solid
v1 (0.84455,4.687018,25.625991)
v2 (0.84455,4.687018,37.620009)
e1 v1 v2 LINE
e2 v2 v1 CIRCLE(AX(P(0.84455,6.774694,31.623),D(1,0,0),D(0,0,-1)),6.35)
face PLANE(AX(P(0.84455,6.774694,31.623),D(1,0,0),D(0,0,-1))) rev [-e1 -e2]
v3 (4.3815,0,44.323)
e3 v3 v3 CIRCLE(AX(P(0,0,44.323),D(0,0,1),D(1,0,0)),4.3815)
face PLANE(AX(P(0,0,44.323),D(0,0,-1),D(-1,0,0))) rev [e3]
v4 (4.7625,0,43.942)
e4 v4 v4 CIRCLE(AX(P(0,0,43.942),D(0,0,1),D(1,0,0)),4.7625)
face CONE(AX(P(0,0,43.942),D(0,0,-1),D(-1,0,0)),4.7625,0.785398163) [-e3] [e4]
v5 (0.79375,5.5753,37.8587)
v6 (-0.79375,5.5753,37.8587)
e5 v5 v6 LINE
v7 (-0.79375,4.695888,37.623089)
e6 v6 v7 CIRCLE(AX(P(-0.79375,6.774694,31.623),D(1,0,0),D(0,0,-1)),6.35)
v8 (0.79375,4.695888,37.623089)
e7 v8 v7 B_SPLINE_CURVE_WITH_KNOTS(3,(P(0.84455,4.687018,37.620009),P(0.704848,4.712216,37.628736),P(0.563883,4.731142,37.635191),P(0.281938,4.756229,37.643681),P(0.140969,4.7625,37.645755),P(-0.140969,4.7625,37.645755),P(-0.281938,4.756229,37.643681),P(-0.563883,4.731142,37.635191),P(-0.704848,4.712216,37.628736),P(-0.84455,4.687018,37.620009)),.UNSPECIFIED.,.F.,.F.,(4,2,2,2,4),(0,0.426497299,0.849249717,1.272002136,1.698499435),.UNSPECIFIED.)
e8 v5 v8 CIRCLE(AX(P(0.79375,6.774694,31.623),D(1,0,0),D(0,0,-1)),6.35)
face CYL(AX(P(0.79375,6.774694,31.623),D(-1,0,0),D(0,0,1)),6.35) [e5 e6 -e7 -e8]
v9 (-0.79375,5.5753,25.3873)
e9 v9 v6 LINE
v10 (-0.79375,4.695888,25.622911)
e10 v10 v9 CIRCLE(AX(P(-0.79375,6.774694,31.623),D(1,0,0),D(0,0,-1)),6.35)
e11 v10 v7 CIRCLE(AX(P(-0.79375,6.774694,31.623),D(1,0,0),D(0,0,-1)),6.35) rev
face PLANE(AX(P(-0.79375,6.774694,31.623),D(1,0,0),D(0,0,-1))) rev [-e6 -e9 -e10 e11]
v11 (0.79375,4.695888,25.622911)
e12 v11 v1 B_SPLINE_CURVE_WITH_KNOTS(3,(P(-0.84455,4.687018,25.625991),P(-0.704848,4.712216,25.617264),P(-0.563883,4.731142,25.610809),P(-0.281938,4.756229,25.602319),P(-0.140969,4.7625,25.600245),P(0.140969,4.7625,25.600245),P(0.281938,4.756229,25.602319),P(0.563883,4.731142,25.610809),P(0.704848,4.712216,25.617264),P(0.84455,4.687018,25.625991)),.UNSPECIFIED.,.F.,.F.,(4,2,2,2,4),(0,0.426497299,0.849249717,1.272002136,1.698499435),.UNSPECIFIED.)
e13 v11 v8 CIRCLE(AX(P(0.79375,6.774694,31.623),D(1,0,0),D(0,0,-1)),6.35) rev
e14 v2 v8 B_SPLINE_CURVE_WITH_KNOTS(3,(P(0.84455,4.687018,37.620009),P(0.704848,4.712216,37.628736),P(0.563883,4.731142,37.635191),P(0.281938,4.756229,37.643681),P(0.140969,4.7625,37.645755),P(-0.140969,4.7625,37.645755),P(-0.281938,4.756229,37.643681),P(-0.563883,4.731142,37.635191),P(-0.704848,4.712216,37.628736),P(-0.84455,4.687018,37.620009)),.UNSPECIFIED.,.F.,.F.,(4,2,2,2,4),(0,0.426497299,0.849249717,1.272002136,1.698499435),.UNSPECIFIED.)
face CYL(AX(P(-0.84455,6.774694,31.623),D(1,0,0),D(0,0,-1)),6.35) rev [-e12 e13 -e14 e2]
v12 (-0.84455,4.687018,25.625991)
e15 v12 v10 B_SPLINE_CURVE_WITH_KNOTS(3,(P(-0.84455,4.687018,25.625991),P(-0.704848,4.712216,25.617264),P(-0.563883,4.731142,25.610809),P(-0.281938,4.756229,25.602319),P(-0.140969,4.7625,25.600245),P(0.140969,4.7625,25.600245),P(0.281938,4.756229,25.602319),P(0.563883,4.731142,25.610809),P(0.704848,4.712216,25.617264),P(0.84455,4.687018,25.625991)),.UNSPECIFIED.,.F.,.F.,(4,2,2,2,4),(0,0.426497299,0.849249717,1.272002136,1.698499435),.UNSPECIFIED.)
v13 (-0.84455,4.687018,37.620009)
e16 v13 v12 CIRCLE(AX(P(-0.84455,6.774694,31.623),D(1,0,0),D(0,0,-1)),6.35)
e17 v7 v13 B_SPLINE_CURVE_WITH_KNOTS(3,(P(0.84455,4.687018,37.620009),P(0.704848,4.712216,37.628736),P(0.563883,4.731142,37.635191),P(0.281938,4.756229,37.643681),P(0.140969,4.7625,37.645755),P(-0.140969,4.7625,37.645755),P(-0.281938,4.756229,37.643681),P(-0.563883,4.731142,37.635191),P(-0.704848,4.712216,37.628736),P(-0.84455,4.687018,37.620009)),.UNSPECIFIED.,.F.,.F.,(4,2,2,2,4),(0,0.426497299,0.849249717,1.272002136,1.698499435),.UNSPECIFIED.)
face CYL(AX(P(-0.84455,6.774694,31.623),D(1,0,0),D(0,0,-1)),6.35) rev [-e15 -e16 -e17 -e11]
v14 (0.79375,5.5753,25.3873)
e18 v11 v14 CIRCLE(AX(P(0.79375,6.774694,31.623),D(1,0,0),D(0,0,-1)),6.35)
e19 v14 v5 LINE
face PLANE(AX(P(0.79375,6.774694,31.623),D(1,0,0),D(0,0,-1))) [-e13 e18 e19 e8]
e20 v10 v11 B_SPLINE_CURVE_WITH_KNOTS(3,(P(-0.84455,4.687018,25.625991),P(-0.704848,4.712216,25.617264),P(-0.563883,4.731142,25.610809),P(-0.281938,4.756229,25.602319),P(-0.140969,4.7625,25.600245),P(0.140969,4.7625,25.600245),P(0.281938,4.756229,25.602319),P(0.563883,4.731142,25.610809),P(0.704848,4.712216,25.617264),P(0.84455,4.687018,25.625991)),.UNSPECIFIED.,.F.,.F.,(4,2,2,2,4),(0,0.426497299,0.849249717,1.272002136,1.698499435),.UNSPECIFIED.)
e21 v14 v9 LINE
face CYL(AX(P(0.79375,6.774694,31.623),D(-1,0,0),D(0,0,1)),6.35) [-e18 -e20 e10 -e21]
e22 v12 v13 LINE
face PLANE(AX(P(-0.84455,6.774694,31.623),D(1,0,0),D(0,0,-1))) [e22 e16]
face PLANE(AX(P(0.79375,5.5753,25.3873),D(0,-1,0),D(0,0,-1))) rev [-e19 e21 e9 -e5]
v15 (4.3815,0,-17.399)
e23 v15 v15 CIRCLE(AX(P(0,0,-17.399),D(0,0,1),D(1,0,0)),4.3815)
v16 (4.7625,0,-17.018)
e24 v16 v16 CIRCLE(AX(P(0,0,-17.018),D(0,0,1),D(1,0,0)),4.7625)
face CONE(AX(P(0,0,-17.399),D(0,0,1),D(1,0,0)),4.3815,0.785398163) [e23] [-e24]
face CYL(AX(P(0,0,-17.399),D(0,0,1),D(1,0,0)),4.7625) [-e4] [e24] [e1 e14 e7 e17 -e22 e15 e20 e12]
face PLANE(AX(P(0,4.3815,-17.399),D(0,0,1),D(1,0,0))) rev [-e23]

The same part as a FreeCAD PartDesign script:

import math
import FreeCAD as App
import Part
import Sketcher
from FreeCAD import Vector
Q = App.Units.Quantity


def add_polygon(sketch, points):
    """Adds a closed chain of lines whose ends are joined by coincident constraints."""
    first, n = sketch.GeometryCount, len(points)
    for a, b in zip(points, points[1:] + points[:1]):
        sketch.addGeometry(Part.LineSegment(App.Vector(*a, 0), App.Vector(*b, 0)), False)
    for i in range(n):
        sketch.addConstraint(Sketcher.Constraint("Coincident", first + i, 2, first + (i + 1) % n, 1))

doc = App.newDocument("Part")
body = doc.addObject("PartDesign::Body", "Body")

# Sketch on YZ plane
sketch1 = doc.addObject("Sketcher::SketchObject", "Sketch")
body.addObject(sketch1)
sketch1.AttachmentSupport = (doc.YZ_Plane, [""])
sketch1.MapMode = "FlatFace"
add_polygon(sketch1, [(4.4, 44.3), (0, 44.3), (0, -17.4), (4.4, -17.4), (4.8, -17), (4.8, 43.9)])  # lines 0-5
sketch1.addConstraint(Sketcher.Constraint("Horizontal", 0))
sketch1.addConstraint(Sketcher.Constraint("Vertical", 1))
sketch1.addConstraint(Sketcher.Constraint("Horizontal", 2))
sketch1.addConstraint(Sketcher.Constraint("Vertical", 4))
sketch1.addConstraint(Sketcher.Constraint("PointOnObject", 0, 2, -2))
sketch1.addConstraint(Sketcher.Constraint("Perpendicular", 3, 5))
sketch1.addConstraint(Sketcher.Constraint("Vertical", 2, 2, 5, 2))
sketch1.addConstraint(Sketcher.Constraint("Equal", 3, 5))
sketch1.addConstraint(Sketcher.Constraint("DistanceY", 4, 1, 4, 2, Q("2.4 in")))
sketch1.addConstraint(Sketcher.Constraint("DistanceY", 1, 2, 1, 1, Q("2.43 in")))
sketch1.addConstraint(Sketcher.Constraint("DistanceY", 3, 2, -1, 1, Q("0.67 in")))
sketch1.addConstraint(Sketcher.Constraint("DistanceX", 0, 2, 0, 1, Q("0.1725 in")))
revolution = doc.addObject("PartDesign::Revolution", "Revolution")
body.addObject(revolution)
revolution.Profile = sketch1
revolution.ReferenceAxis = (sketch1, ["V_Axis"])
revolution.Angle = 360

# Sketch on YZ plane
sketch2 = doc.addObject("Sketcher::SketchObject", "Sketch001")
body.addObject(sketch2)
sketch2.AttachmentSupport = (doc.YZ_Plane, [""])
sketch2.MapMode = "FlatFace"
sketch2.addGeometry(Part.LineSegment(Vector(6, 25, 0), Vector(6, 38, 0)), False)
sketch2.addGeometry(Part.ArcOfCircle(Part.Circle(Vector(7, 32, 0), Vector(0, 0, 1), 6), math.radians(101), math.radians(259)), False)
sketch2.addConstraint(Sketcher.Constraint("Coincident", 0, 1, 1, 2))
sketch2.addConstraint(Sketcher.Constraint("Coincident", 1, 1, 0, 2))
sketch2.addConstraint(Sketcher.Constraint("Vertical", 0))
sketch2.addConstraint(Sketcher.Constraint("Radius", 1, Q("0.25 in")))
sketch2.addConstraint(Sketcher.Constraint("DistanceY", 0, 1, 0, 2, Q("0.491 in")))
sketch2.addConstraint(Sketcher.Constraint("DistanceY", -1, 1, 1, 3, Q("1.245 in")))
sketch2.addConstraint(Sketcher.Constraint("DistanceX", -1, 1, 0, 1, Q("0.2195 in")))
pocket1 = doc.addObject("PartDesign::Pocket", "Pocket")
body.addObject(pocket1)
pocket1.Profile = sketch2
pocket1.Type = "TwoLengths"
pocket1.Length = 0.84455
pocket1.Length2 = 0.84455
pocket1.Reversed = True

# Sketch on YZ plane
sketch3 = doc.addObject("Sketcher::SketchObject", "Sketch002")
body.addObject(sketch3)
sketch3.AttachmentSupport = (doc.YZ_Plane, [""])
sketch3.MapMode = "FlatFace"
sketch3.addGeometry(Part.LineSegment(Vector(0.43, 31.75, 0), Vector(0.17, 31.75, 0)), False)
sketch3.addGeometry(Part.LineSegment(Vector(0.17, 31.75, 0), Vector(0.17, 31.5, 0)), False)
sketch3.addGeometry(Part.LineSegment(Vector(0.17, 31.5, 0), Vector(0.43, 31.5, 0)), False)
sketch3.addGeometry(Part.ArcOfCircle(Part.Circle(Vector(6.77, 31.62, 0), Vector(0, 0, 1), 6.35), math.radians(-179), math.radians(-101)), False)
sketch3.addGeometry(Part.LineSegment(Vector(5.58, 25.39, 0), Vector(5.58, 37.86, 0)), False)
sketch3.addGeometry(Part.ArcOfCircle(Part.Circle(Vector(6.77, 31.62, 0), Vector(0, 0, 1), 6.35), math.radians(101), math.radians(179)), False)
sketch3.addConstraint(Sketcher.Constraint("Coincident", 0, 2, 1, 1))
sketch3.addConstraint(Sketcher.Constraint("Coincident", 1, 2, 2, 1))
sketch3.addConstraint(Sketcher.Constraint("Coincident", 2, 2, 3, 1))
sketch3.addConstraint(Sketcher.Constraint("Coincident", 3, 2, 4, 1))
sketch3.addConstraint(Sketcher.Constraint("Coincident", 4, 2, 5, 1))
sketch3.addConstraint(Sketcher.Constraint("Coincident", 5, 2, 0, 1))
sketch3.addConstraint(Sketcher.Constraint("Horizontal", 0))
sketch3.addConstraint(Sketcher.Constraint("Vertical", 1))
sketch3.addConstraint(Sketcher.Constraint("Horizontal", 2))
sketch3.addConstraint(Sketcher.Constraint("Vertical", 4))
sketch3.addConstraint(Sketcher.Constraint("Coincident", 5, 3, 3, 3))
sketch3.addConstraint(Sketcher.Constraint("Equal", 3, 5))
sketch3.addConstraint(Sketcher.Constraint("Vertical", 2, 2, 5, 2))
sketch3.addConstraint(Sketcher.Constraint("Radius", 3, Q("0.25 in")))
sketch3.addConstraint(Sketcher.Constraint("DistanceY", 1, 2, 1, 1, Q("0.01 in")))
sketch3.addConstraint(Sketcher.Constraint("DistanceY", 4, 1, 4, 2, Q("0.491 in")))
sketch3.addConstraint(Sketcher.Constraint("DistanceY", -1, 1, 0, 2, Q("1.25 in")))
sketch3.addConstraint(Sketcher.Constraint("DistanceX", -1, 1, 3, 2, Q("0.2195 in")))
sketch3.addConstraint(Sketcher.Constraint("DistanceX", -1, 1, 0, 2, 0.1694))
pad1 = doc.addObject("PartDesign::Pad", "Pad")
body.addObject(pad1)
pad1.Profile = sketch3
pad1.Type = "TwoLengths"
pad1.Length = Q("0.03125 in")
pad1.Length2 = Q("0.03125 in")

doc.recompute()
